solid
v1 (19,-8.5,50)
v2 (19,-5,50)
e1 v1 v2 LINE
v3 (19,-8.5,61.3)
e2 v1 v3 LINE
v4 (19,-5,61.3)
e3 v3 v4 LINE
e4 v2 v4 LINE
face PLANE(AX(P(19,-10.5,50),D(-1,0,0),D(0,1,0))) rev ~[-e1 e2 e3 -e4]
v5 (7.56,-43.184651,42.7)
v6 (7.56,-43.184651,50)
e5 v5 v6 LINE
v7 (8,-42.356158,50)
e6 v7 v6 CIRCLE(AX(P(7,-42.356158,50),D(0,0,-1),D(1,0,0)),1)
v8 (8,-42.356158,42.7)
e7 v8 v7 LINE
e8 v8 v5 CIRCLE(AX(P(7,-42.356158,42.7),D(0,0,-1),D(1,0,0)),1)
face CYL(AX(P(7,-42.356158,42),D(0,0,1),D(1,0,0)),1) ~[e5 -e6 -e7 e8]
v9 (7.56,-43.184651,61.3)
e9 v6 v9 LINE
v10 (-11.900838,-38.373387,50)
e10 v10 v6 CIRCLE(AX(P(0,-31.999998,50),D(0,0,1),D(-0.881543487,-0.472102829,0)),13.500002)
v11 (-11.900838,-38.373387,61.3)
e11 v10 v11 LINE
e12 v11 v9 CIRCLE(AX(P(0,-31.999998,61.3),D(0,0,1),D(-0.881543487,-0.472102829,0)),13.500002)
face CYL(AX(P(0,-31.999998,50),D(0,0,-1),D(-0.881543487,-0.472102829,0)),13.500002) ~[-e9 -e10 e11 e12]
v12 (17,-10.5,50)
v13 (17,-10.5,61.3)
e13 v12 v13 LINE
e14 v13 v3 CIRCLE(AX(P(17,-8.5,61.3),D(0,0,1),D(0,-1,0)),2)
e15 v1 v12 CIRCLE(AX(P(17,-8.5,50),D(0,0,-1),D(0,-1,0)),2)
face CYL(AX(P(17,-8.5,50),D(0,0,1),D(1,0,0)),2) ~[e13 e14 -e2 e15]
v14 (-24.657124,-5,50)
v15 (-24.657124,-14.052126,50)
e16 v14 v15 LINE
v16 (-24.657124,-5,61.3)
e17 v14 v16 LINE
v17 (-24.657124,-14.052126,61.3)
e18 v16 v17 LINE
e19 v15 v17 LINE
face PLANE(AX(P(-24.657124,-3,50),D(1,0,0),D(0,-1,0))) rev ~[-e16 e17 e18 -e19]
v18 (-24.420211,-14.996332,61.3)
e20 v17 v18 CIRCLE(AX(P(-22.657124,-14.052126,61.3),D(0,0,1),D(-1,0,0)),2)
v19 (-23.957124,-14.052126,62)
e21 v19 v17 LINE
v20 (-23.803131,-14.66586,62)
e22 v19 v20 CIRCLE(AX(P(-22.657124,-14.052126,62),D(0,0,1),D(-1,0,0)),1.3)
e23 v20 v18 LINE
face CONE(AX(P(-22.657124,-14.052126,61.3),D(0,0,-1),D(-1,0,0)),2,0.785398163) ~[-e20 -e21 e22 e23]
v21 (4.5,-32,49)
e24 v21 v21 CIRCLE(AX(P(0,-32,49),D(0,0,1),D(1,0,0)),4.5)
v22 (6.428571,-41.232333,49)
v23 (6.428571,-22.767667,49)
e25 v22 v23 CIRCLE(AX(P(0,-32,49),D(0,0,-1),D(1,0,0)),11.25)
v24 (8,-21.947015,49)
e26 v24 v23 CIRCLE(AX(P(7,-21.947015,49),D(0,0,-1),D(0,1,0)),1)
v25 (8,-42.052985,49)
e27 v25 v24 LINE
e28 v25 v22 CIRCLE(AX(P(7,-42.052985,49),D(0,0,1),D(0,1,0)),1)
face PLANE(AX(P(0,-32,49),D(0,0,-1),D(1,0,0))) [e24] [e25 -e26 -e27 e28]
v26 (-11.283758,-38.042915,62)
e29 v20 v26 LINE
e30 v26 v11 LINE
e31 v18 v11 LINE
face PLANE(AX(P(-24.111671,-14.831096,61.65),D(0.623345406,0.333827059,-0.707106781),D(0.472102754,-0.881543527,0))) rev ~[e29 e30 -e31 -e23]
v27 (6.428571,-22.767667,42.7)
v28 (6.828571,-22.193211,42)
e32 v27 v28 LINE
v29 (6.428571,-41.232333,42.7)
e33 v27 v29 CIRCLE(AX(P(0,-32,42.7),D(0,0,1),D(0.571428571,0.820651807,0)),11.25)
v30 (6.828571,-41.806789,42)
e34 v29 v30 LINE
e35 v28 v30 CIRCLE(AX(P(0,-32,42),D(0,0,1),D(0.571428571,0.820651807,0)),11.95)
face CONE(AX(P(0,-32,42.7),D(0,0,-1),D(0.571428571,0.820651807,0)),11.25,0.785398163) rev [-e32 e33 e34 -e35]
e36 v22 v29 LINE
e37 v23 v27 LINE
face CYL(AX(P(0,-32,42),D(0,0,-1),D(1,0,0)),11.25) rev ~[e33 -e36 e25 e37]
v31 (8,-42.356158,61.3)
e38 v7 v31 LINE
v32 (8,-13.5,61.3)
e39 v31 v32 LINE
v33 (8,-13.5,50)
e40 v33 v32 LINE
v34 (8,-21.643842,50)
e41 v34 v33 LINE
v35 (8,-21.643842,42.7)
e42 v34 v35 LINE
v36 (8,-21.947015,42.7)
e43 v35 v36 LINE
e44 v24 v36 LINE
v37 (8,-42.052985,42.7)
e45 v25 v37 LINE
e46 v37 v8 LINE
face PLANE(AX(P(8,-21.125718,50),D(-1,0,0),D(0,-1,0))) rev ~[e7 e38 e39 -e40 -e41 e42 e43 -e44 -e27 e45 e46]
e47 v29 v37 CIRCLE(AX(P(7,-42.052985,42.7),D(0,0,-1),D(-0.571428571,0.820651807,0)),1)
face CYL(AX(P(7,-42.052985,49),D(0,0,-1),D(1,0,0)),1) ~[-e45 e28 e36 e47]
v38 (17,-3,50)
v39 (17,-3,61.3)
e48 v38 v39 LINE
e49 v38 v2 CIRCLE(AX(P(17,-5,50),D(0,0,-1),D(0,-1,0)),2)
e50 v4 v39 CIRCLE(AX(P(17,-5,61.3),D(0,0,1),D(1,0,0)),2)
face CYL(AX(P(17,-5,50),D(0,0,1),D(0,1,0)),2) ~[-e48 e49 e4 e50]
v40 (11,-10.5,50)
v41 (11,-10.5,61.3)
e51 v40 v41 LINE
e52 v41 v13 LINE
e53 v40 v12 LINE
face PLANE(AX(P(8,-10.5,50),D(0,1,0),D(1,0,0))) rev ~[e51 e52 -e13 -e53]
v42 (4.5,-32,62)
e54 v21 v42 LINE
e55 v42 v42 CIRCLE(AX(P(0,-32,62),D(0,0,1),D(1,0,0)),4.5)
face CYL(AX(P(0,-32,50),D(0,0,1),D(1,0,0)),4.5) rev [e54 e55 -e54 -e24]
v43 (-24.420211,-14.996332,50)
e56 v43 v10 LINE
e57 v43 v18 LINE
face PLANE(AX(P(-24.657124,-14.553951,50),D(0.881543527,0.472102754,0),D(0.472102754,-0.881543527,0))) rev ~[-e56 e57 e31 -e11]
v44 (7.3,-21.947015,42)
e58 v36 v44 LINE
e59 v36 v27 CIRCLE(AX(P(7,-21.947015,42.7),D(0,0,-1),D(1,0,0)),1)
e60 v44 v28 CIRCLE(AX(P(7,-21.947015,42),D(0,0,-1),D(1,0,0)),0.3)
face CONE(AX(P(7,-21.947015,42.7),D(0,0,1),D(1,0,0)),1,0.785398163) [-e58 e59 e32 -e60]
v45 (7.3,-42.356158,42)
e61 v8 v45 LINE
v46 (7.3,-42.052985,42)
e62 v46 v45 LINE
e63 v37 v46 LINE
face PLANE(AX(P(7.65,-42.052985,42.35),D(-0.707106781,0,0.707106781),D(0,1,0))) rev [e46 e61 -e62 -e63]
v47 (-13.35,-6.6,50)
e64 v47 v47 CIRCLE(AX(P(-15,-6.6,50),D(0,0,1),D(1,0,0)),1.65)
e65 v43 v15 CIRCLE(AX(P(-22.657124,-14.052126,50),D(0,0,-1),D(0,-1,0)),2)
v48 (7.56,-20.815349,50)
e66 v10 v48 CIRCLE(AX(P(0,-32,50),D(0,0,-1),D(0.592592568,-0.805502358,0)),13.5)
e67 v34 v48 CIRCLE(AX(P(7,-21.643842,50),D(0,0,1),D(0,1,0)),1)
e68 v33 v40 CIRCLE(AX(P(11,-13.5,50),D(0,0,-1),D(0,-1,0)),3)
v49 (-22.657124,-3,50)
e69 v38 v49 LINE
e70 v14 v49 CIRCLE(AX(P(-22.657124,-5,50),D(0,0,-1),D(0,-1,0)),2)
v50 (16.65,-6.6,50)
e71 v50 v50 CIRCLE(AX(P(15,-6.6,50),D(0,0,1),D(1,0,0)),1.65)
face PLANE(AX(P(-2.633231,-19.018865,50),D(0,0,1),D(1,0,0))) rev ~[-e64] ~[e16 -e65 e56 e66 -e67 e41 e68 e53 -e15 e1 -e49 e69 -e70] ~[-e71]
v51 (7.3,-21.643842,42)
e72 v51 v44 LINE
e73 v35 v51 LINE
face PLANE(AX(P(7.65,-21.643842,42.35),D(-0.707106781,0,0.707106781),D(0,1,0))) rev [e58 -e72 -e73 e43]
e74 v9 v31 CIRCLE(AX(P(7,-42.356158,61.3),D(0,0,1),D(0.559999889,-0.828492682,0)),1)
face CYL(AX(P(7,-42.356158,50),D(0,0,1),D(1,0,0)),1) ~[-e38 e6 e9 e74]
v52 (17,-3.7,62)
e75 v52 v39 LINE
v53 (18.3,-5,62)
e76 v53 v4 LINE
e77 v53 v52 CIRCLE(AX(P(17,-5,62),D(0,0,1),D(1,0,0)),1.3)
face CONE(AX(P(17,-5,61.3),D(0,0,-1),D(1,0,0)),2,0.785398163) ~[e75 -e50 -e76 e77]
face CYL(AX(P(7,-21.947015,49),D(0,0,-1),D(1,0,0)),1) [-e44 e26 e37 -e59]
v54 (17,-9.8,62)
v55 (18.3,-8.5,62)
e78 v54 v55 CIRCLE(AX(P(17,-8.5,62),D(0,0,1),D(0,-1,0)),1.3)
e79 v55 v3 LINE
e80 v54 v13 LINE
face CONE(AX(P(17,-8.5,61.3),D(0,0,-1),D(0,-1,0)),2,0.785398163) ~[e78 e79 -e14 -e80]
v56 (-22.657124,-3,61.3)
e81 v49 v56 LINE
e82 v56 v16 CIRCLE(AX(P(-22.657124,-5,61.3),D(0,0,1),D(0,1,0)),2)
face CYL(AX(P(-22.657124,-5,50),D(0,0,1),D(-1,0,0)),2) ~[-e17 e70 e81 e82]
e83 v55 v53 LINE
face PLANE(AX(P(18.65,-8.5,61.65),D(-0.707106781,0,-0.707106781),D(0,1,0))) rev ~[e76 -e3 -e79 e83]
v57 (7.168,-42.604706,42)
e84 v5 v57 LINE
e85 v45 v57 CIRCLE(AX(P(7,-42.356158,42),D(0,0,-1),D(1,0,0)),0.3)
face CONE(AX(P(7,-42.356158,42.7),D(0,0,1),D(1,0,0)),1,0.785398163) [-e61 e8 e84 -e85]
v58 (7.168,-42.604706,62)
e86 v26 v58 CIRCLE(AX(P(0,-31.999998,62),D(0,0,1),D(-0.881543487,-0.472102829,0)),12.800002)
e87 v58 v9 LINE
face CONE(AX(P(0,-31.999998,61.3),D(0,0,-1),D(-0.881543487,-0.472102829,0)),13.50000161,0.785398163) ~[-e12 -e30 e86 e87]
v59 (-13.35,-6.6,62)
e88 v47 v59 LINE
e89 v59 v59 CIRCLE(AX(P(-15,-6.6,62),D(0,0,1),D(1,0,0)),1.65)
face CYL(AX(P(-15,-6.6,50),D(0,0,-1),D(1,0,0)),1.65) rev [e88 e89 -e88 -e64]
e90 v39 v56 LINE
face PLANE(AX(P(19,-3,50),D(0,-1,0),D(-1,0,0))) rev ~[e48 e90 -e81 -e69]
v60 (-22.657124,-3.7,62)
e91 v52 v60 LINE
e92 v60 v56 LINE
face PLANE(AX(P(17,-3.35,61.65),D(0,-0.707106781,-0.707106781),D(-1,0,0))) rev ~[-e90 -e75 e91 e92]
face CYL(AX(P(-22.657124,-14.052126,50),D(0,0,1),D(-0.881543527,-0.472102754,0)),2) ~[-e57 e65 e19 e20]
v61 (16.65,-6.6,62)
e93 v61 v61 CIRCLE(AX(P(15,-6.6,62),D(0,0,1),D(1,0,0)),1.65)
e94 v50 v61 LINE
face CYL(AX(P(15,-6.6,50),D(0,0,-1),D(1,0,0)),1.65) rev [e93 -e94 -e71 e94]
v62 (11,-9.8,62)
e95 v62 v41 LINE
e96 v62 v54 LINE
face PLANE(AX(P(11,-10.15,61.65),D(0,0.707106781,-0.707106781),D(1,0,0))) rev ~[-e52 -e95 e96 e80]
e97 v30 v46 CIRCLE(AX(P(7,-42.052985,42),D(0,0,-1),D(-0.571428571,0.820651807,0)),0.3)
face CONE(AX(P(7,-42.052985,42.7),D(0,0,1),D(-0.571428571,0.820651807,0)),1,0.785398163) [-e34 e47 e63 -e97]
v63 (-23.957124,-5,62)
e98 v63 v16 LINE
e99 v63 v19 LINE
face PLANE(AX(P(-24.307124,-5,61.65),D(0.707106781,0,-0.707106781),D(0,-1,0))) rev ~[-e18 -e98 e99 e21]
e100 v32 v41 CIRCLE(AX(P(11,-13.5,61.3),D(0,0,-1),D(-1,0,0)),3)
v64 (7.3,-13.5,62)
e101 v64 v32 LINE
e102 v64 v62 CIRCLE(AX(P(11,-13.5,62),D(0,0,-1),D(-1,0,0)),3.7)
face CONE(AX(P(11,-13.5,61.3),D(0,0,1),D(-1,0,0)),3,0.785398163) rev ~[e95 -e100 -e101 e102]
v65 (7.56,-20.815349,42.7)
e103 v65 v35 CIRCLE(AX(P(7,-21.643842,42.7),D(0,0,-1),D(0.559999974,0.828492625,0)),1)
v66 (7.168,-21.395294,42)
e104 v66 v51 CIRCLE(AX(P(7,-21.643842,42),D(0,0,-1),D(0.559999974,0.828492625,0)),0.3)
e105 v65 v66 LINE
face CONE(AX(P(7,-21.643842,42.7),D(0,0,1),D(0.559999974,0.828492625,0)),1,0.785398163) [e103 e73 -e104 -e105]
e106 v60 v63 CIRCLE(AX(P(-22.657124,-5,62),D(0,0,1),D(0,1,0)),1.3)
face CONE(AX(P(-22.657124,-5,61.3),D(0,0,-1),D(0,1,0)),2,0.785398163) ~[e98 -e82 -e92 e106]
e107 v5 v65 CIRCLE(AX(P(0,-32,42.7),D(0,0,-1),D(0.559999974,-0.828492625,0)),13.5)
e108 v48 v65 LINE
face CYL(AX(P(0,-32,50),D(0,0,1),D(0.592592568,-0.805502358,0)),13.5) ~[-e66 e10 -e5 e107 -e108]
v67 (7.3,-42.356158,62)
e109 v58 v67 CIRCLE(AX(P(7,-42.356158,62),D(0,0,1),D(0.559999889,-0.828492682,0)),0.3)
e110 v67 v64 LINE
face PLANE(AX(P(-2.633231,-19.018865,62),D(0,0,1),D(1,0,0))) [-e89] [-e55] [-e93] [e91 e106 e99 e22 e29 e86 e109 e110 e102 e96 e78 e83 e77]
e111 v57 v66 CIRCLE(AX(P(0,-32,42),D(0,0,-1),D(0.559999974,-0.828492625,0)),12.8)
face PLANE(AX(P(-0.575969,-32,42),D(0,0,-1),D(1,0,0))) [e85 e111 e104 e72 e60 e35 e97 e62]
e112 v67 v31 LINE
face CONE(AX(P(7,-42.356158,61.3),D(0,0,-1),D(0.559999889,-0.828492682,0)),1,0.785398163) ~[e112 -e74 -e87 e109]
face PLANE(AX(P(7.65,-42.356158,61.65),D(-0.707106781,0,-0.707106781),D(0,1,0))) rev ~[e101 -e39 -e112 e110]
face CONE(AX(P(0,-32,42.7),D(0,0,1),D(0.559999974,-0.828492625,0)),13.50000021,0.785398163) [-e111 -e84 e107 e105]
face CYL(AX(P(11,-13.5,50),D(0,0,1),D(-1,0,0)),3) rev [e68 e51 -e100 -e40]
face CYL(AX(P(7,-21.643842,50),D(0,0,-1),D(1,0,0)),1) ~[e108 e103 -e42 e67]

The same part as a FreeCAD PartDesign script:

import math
import FreeCAD as App
import Part
import Sketcher
from FreeCAD import Vector


def edges_at(feature, points):
    """Names of the edges that pass closest to the given points."""
    edges = feature.Shape.Edges
    near = lambda p: min(range(len(edges)), key=lambda i: edges[i].distToShape(Part.Vertex(*p))[0])
    return sorted({f"Edge{near(p) + 1}" for p in points})

doc = App.newDocument("Part")
body = doc.addObject("PartDesign::Body", "Body")

# Sketch on XY plane
sketch1 = body.newObject("Sketcher::SketchObject", "Sketch")
sketch1.AttachmentSupport = (doc.getObject("XY_Plane"), [""])
sketch1.MapMode = "FlatFace"
sketch1.addGeometry([
    Part.ArcOfCircle(Part.Circle(Vector(0, 0, 0), Vector(0, 0, 1), 13.5), math.radians(-152), math.radians(-54)),  # 0
    Part.LineSegment(Vector(8, -10.9, 0), Vector(8, 21.5, 0)),  # 1
    Part.LineSegment(Vector(8, 21.5, 0), Vector(19, 21.5, 0)),  # 2
    Part.LineSegment(Vector(19, 21.5, 0), Vector(19, 29, 0)),  # 3
    Part.LineSegment(Vector(19, 29, 0), Vector(-24.7, 29, 0)),  # 4
    Part.LineSegment(Vector(-24.7, 29, 0), Vector(-24.7, 17.4, 0)),  # 5
    Part.LineSegment(Vector(-24.7, 17.4, 0), Vector(-11.9, -6.4, 0)),  # 6
    Part.Circle(Vector(0, 0, 0), Vector(0, 0, 1), 4.5),  # 7
    Part.Circle(Vector(-15, 25.4, 0), Vector(0, 0, 1), 1.6),  # 8
    Part.Circle(Vector(15, 25.4, 0), Vector(0, 0, 1), 1.6),  # 9
], False)
sketch1.addConstraint([
    Sketcher.Constraint("Coincident", 0, 2, 1, 1),
    Sketcher.Constraint("Coincident", 1, 2, 2, 1),
    Sketcher.Constraint("Coincident", 2, 2, 3, 1),
    Sketcher.Constraint("Coincident", 3, 2, 4, 1),
    Sketcher.Constraint("Coincident", 4, 2, 5, 1),
    Sketcher.Constraint("Coincident", 5, 2, 6, 1),
    Sketcher.Constraint("Tangent", 6, 2, 0, 1),
    Sketcher.Constraint("Vertical", 1),
    Sketcher.Constraint("Horizontal", 2),
    Sketcher.Constraint("Vertical", 3),
    Sketcher.Constraint("Horizontal", 4),
    Sketcher.Constraint("Vertical", 5),
    Sketcher.Constraint("Coincident", 0, 3, -1, 1),
    Sketcher.Constraint("Coincident", 7, 3, -1, 1),
    Sketcher.Constraint("Equal", 8, 9),
    Sketcher.Constraint("Symmetric", 8, 3, 9, 3, -2),
    Sketcher.Constraint("Diameter", 7, 9.0),
    Sketcher.Constraint("Diameter", 8, 3.3),
    Sketcher.Constraint("Radius", 0, 13.500002),
    Sketcher.Constraint("DistanceX", 2, 1, 2, 2, 11.0),
    Sketcher.Constraint("DistanceY", 3, 1, 3, 2, 7.5),
    Sketcher.Constraint("DistanceX", 8, 3, -1, 1, 15.0),
    Sketcher.Constraint("DistanceX", -1, 1, 0, 2, 8.0),
    Sketcher.Constraint("DistanceY", -1, 1, 3, 2, 29.0),
    Sketcher.Constraint("DistanceY", -1, 1, 8, 3, 25.4),
    Sketcher.Constraint("DistanceY", 5, 2, 5, 1, 11.553951),
    Sketcher.Constraint("DistanceX", 4, 2, 4, 1, 43.657124),
])
pad1 = body.newObject("PartDesign::Pad", "Pad")
pad1.Profile = sketch1
pad1.Length = 12

# Sketch on XY plane
sketch2 = body.newObject("Sketcher::SketchObject", "Sketch001")
sketch2.AttachmentSupport = (doc.getObject("XY_Plane"), [""])
sketch2.MapMode = "FlatFace"
sketch2.addGeometry([
    Part.ArcOfCircle(Part.Circle(Vector(0, 0, 0), Vector(0, 0, 1), 13.5), math.radians(54), math.radians(306)),
    Part.LineSegment(Vector(8, 10.9, 0), Vector(8, -10.9, 0)),
    Part.Circle(Vector(0, 0, 0), Vector(0, 0, 1), 4.5),
], False)
sketch2.addConstraint([
    Sketcher.Constraint("Coincident", 0, 1, 1, 1),
    Sketcher.Constraint("Coincident", 1, 2, 0, 2),
    Sketcher.Constraint("Vertical", 1),
    Sketcher.Constraint("Coincident", 0, 3, -1, 1),
    Sketcher.Constraint("Coincident", 2, 3, -1, 1),
    Sketcher.Constraint("Diameter", 2, 9.0),
    Sketcher.Constraint("Radius", 0, 13.5),
    Sketcher.Constraint("DistanceX", -1, 1, 0, 1, 8.0),
])
pad2 = body.newObject("PartDesign::Pad", "Pad001")
pad2.Profile = sketch2
pad2.Length = 8
pad2.Reversed = True

# Sketch on XY plane
sketch3 = body.newObject("Sketcher::SketchObject", "Sketch002")
sketch3.AttachmentSupport = (doc.getObject("XY_Plane"), [""])
sketch3.MapMode = "FlatFace"
sketch3.AttachmentOffset = App.Placement(Vector(0, 0, -8), App.Rotation())
sketch3.addGeometry(Part.Circle(Vector(0, 0, 0), Vector(0, 0, 1), 11), False)
sketch3.addConstraint([
    Sketcher.Constraint("Coincident", 0, 3, -1, 1),
    Sketcher.Constraint("Diameter", 0, 22.5),
])
pocket1 = body.newObject("PartDesign::Pocket", "Pocket")
pocket1.Profile = sketch3
pocket1.Length = 7
pocket1.Reversed = True
doc.recompute()

fillet = body.newObject("PartDesign::Fillet", "Fillet")
fillet.Base = (pocket1, edges_at(pocket1, [(8, 21.5, 6)]))
fillet.Radius = 3
doc.recompute()

fillet2 = body.newObject("PartDesign::Fillet", "Fillet001")
fillet2.Base = (fillet, edges_at(fillet, [
    (8, -10.874, 6),
    (8, -7.91, -4.5),
    (8, 7.91, -4.5),
    (8, 10.874, -4),
]))
fillet2.Radius = 1
doc.recompute()

fillet3 = body.newObject("PartDesign::Fillet", "Fillet002")
fillet3.Base = (fillet2, edges_at(fillet2, [
    (19, 21.5, 6),
    (19, 29, 6),
    (-24.657, 17.446, 6),
    (-24.657, 29, 6),
]))
fillet3.Radius = 2
doc.recompute()

chamfer = body.newObject("PartDesign::Chamfer", "Chamfer")
chamfer.Base = (fillet3, edges_at(fillet3, [(-24.657, 22.474, 12), (-13.5, 0, -8)]))
chamfer.Size = 0.7
body2 = doc.addObject("PartDesign::Body", "Body001")
doc.recompute()

body.Placement = App.Placement(Vector(0, -32, 50), App.Rotation(Vector(0, 0, 1), 0))
boolean = body2.newObject("PartDesign::Boolean", "Boolean")
boolean.Type = "Fuse"
boolean.addObjects([body])

doc.recompute()
